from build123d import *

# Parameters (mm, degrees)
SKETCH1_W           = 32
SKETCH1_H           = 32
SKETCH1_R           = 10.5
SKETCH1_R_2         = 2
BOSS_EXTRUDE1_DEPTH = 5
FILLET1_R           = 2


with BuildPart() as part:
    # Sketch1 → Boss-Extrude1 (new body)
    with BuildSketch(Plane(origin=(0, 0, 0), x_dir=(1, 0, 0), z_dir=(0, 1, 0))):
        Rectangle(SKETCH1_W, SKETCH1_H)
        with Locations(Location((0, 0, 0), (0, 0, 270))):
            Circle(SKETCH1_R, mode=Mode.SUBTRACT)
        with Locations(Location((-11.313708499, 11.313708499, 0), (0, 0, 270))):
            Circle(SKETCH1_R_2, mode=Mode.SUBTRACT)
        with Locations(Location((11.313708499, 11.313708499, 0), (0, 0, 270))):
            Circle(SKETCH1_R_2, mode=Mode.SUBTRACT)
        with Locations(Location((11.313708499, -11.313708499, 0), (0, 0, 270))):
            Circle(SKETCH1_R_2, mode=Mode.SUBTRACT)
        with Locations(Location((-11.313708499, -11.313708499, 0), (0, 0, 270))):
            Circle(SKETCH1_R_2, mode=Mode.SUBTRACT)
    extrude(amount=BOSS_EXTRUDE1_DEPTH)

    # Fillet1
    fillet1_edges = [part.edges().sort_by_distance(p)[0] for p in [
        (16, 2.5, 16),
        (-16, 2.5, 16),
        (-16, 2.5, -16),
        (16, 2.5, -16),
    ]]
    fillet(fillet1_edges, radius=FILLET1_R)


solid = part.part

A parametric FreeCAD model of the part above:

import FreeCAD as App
import Part
import Sketcher
Q = App.Units.Quantity


def edges_at(feature, points):
    """Names of the edges that pass closest to the given points."""
    edges = feature.Shape.Edges
    near = lambda p: min(range(len(edges)), key=lambda i: edges[i].distToShape(Part.Vertex(*p))[0])
    return sorted({f"Edge{near(p) + 1}" for p in points})

doc = App.newDocument("Part")
body = doc.addObject("PartDesign::Body", "Body")

sketch1 = body.newObject("Sketcher::SketchObject", "Sketch")
sketch1.AttachmentSupport = (doc.getObject("XZ_Plane"), [""])
sketch1.MapMode = "FlatFace"
sketch1.addGeometry([
    Part.LineSegment(App.Vector(-16, -16, 0), App.Vector(-16, 16, 0)),
    Part.LineSegment(App.Vector(-16, 16, 0), App.Vector(16, 16, 0)),
    Part.LineSegment(App.Vector(16, 16, 0), App.Vector(16, -16, 0)),
    Part.LineSegment(App.Vector(16, -16, 0), App.Vector(-16, -16, 0)),
    Part.Circle(App.Vector(-11.3, 11.3, 0), App.Vector(0, 0, 1), 2),
    Part.Circle(App.Vector(11.3, 11.3, 0), App.Vector(0, 0, 1), 2),
    Part.Circle(App.Vector(-11.3, -11.3, 0), App.Vector(0, 0, 1), 2),
    Part.Circle(App.Vector(0, 0, 0), App.Vector(0, 0, 1), 10.5),
    Part.Circle(App.Vector(11.3, -11.3, 0), App.Vector(0, 0, 1), 2),
], False)
sketch1.addConstraint([
    Sketcher.Constraint("Coincident", 0, 2, 1, 1),
    Sketcher.Constraint("Coincident", 1, 2, 2, 1),
    Sketcher.Constraint("Coincident", 2, 2, 3, 1),
    Sketcher.Constraint("Coincident", 3, 2, 0, 1),
    Sketcher.Constraint("Vertical", 0),
    Sketcher.Constraint("Horizontal", 1),
    Sketcher.Constraint("Vertical", 2),
    Sketcher.Constraint("Horizontal", 3),
    Sketcher.Constraint("Coincident", 7, 3, -1, 1),
    Sketcher.Constraint("Equal", 4, 5),
    Sketcher.Constraint("Equal", 5, 6),
    Sketcher.Constraint("Equal", 6, 8),
    Sketcher.Constraint("Symmetric", 5, 3, 6, 3, -1, 1),
    Sketcher.Constraint("Symmetric", 4, 3, 8, 3, -1, 1),
    Sketcher.Constraint("Symmetric", 0, 2, 2, 2, -1, 1),
    Sketcher.Constraint("Symmetric", 4, 3, 5, 3, -2),
    Sketcher.Constraint("Equal", 3, 0),
    Sketcher.Constraint("Diameter", 4, Q("4 mm")),
    Sketcher.Constraint("Diameter", 7, Q("21 mm")),
    Sketcher.Constraint("DistanceX", 1, 1, 1, 2, Q("32 mm")),
    Sketcher.Constraint("DistanceX", 4, 3, -1, 1, Q("11.313708 mm")),
    Sketcher.Constraint("DistanceY", -1, 1, 4, 3, Q("11.313708 mm")),
])
pad1 = body.newObject("PartDesign::Pad", "Pad")
pad1.Profile = sketch1
pad1.Length = 5
pad1.Reversed = True
doc.recompute()

fillet = body.newObject("PartDesign::Fillet", "Fillet")
fillet.Base = (pad1, edges_at(pad1, [
    (16, 2.5, 16),
    (-16, 2.5, 16),
    (-16, 2.5, -16),
    (16, 2.5, -16),
]))
fillet.Radius = 2

doc.recompute()
